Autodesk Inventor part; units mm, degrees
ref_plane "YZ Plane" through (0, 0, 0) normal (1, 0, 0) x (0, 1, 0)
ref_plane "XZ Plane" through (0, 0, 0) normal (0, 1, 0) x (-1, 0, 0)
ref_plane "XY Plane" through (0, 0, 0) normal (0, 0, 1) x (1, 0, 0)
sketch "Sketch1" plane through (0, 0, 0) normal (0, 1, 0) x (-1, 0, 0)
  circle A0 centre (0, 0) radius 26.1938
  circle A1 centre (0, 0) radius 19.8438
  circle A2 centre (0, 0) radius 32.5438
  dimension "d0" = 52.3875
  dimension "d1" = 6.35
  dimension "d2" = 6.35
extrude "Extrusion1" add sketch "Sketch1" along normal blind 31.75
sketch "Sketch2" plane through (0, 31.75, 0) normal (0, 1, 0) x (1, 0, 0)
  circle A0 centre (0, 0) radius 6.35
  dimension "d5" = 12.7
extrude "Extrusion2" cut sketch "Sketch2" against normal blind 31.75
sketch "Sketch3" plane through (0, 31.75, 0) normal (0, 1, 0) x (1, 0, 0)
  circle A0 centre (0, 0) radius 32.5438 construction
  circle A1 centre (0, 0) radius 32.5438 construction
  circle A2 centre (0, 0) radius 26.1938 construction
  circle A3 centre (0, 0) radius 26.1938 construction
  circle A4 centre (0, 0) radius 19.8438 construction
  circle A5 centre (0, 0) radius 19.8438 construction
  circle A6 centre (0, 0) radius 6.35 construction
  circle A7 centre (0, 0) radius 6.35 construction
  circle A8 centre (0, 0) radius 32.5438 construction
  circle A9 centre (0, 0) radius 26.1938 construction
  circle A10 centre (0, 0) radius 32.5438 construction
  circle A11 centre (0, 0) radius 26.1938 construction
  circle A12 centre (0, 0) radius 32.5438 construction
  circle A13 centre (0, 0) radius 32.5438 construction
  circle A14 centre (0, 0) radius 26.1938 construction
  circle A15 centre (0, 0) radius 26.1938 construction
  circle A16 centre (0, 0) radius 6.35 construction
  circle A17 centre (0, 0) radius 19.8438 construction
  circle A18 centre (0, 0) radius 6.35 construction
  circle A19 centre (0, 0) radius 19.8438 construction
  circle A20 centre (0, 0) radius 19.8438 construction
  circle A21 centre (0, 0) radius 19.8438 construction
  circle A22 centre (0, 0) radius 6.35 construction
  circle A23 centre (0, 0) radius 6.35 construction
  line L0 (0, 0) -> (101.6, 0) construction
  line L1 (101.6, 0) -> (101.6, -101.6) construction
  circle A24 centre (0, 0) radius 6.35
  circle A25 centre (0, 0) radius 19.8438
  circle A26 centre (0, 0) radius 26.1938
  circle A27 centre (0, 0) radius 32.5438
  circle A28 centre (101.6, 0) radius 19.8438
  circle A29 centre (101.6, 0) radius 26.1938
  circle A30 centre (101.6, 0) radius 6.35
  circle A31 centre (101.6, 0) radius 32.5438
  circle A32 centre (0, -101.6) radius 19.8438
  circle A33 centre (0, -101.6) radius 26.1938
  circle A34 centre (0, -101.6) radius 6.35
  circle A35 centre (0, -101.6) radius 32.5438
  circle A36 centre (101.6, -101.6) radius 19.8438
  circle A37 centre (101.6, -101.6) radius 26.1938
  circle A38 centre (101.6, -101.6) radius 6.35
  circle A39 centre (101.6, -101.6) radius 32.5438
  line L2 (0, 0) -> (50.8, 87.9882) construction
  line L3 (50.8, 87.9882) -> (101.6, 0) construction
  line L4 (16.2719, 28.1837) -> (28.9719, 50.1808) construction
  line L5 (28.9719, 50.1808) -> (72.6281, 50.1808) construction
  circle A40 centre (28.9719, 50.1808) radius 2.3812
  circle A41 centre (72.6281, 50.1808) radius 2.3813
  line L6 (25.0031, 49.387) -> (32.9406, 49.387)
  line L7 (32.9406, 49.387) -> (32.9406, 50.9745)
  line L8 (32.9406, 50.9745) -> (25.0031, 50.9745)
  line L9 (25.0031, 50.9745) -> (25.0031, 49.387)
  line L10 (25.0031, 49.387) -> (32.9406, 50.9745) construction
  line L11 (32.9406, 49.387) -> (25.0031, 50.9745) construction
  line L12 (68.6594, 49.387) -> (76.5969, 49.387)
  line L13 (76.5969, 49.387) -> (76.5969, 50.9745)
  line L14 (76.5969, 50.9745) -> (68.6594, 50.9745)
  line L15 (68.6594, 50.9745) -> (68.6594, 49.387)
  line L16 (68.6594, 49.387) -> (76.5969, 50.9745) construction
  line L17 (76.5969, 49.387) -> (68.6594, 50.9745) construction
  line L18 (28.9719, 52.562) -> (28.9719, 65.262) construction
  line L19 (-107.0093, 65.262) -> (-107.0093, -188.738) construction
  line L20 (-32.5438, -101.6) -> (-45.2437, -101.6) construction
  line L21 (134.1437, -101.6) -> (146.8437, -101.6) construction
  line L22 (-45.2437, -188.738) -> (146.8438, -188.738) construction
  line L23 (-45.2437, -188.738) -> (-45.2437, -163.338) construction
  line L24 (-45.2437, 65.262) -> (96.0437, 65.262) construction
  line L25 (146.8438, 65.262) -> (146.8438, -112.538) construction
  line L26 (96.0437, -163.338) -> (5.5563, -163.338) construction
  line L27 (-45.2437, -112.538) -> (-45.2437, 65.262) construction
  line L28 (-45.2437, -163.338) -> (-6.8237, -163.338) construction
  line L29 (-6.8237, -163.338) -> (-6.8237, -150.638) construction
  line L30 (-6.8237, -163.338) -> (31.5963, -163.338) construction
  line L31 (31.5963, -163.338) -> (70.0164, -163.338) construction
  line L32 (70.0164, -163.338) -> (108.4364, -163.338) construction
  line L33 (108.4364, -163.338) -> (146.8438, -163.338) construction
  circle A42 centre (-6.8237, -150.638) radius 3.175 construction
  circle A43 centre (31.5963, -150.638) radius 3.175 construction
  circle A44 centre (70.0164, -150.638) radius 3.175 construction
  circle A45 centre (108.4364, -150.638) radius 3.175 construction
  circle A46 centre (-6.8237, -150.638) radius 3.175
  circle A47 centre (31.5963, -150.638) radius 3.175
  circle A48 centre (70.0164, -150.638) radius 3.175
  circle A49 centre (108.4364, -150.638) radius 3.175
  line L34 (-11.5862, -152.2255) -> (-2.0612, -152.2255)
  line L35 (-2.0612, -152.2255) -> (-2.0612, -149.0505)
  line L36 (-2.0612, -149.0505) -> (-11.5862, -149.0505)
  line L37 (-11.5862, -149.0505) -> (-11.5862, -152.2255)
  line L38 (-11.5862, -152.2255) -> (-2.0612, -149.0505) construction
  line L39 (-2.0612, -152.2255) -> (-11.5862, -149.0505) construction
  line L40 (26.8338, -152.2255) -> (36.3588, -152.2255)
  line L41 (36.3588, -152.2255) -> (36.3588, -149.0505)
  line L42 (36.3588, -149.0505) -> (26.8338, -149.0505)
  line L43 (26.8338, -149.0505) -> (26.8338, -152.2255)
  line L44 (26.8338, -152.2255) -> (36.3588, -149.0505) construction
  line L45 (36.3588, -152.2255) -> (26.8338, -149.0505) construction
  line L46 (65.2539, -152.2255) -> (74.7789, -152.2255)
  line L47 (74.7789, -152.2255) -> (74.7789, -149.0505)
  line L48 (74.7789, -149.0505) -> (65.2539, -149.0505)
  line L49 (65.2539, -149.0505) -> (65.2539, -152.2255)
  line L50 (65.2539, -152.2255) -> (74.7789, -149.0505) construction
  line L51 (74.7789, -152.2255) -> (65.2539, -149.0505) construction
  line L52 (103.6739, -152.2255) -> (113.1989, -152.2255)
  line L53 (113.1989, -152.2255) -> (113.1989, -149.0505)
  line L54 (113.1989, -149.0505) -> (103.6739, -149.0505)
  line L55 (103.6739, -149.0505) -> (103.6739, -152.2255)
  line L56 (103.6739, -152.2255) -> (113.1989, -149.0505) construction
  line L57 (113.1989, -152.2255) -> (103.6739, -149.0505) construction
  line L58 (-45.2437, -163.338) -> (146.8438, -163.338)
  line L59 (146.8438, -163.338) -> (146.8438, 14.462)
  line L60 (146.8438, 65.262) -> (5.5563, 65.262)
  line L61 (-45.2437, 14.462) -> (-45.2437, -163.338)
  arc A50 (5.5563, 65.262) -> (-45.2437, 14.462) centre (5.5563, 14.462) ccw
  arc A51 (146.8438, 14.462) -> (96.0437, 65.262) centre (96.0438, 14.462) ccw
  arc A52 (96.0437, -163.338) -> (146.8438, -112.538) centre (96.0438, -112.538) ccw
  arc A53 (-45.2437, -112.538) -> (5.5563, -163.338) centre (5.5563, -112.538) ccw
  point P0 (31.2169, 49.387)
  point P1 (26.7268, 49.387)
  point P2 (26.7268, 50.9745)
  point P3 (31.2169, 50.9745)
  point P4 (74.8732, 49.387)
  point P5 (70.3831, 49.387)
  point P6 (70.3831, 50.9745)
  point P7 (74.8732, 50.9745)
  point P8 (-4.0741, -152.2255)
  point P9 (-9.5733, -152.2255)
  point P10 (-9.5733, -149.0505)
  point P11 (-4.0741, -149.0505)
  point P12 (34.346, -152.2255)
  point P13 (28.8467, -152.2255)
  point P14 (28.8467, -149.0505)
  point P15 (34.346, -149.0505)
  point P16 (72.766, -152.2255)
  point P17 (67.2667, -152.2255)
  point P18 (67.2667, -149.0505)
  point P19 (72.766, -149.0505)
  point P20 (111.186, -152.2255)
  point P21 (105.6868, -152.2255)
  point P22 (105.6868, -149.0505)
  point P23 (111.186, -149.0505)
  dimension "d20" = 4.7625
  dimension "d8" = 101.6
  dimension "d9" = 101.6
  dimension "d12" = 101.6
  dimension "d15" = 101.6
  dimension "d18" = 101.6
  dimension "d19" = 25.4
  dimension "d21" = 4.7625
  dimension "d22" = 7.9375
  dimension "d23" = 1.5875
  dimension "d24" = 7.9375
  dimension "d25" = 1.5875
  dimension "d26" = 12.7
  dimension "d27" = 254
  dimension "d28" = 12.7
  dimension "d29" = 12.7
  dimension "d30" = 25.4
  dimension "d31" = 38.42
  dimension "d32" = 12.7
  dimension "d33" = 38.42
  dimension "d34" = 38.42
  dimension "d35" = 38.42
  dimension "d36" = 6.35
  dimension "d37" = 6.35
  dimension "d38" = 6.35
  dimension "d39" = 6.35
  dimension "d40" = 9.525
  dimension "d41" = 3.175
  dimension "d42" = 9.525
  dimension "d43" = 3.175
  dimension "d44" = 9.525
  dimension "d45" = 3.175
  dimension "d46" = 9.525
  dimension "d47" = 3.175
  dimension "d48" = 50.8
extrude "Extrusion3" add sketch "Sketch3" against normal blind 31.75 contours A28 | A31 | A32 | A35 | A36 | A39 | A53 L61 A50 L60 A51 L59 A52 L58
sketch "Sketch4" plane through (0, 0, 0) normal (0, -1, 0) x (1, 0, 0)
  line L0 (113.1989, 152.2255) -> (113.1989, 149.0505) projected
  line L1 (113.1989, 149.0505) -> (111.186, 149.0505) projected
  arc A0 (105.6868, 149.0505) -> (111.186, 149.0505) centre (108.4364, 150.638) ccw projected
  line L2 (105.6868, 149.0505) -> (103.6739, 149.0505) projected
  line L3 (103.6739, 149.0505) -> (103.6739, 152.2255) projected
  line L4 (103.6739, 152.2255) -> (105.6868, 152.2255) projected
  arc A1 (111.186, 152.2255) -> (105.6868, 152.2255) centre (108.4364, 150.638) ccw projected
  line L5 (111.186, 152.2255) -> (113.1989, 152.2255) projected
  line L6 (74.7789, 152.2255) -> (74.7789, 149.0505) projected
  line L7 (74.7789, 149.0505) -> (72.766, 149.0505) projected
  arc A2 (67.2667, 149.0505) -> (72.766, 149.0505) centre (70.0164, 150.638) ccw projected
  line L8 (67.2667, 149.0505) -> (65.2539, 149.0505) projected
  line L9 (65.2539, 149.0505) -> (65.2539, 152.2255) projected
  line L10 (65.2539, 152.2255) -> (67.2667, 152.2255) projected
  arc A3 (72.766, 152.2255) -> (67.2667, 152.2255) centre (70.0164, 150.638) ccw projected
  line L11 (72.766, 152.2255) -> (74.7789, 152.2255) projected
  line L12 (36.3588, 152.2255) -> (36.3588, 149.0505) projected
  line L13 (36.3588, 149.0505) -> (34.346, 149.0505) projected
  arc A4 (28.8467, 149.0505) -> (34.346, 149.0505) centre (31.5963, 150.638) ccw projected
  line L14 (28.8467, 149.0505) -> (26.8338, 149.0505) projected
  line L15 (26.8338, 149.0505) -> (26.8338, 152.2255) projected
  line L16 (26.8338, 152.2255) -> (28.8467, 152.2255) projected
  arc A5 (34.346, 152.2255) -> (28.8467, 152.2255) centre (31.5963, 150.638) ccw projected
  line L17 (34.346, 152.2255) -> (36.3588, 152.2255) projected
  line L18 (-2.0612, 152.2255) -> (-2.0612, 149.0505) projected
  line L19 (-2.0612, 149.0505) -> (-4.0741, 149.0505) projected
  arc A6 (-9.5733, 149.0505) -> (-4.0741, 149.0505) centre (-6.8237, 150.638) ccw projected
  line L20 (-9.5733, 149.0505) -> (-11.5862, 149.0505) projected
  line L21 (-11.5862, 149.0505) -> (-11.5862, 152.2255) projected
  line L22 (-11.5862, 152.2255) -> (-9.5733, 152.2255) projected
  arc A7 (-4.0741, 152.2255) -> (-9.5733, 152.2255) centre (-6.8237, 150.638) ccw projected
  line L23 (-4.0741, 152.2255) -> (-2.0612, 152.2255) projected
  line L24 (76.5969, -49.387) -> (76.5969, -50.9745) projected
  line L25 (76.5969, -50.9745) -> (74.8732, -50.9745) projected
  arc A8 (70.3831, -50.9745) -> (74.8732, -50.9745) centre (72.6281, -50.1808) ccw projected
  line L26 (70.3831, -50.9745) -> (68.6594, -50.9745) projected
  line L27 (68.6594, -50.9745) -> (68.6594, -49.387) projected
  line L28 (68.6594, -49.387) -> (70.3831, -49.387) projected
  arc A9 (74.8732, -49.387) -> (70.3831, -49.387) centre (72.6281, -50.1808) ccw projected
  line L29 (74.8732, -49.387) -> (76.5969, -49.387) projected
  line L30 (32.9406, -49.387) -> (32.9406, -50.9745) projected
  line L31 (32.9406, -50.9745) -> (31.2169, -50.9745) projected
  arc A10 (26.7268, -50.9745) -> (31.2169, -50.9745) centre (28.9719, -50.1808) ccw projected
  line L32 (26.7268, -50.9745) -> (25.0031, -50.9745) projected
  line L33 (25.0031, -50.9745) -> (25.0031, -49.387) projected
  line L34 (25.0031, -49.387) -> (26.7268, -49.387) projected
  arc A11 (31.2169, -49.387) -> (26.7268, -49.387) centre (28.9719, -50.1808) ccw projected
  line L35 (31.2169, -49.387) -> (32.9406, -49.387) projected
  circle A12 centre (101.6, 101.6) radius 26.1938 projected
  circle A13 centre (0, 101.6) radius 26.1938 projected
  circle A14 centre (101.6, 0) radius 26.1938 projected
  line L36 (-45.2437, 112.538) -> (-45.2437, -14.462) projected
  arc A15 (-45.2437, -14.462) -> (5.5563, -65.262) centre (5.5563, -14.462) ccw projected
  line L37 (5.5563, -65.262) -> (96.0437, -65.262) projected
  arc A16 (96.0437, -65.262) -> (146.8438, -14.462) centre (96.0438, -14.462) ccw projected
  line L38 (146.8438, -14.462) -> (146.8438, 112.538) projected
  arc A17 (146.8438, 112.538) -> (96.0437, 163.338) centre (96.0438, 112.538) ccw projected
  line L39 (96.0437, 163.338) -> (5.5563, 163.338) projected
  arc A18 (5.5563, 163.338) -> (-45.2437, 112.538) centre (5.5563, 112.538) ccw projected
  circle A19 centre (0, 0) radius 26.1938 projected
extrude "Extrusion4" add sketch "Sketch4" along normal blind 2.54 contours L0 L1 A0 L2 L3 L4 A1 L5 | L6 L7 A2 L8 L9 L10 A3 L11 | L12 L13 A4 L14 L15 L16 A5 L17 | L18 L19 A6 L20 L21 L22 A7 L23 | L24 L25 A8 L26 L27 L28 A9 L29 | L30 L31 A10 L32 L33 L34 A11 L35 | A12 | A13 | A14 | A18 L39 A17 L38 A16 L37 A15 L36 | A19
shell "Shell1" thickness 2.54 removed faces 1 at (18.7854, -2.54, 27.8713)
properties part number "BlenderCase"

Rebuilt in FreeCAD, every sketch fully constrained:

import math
import FreeCAD as App
import Part
import Sketcher
from FreeCAD import Vector
Q = App.Units.Quantity


def faces_at(feature, points):
    """Names of the faces that lie closest to the given points."""
    faces = feature.Shape.Faces
    near = lambda p: min(range(len(faces)), key=lambda i: faces[i].distToShape(Part.Vertex(*p))[0])
    return sorted({f"Face{near(p) + 1}" for p in points})

doc = App.newDocument("Part")
body = doc.addObject("PartDesign::Body", "Body")
body.AllowCompound = True

sketch1 = body.newObject("Sketcher::SketchObject", "Sketch")
sketch1.AttachmentSupport = (doc.getObject("XZ_Plane"), [""])
sketch1.MapMode = "FlatFace"
sketch1.addGeometry(Part.Circle(Vector(0, 0, 0), Vector(0, 0, 1), 20), False)
sketch1.addGeometry(Part.Circle(Vector(0, 0, 0), Vector(0, 0, 1), 33), False)
sketch1.addGeometry(Part.Circle(Vector(0, 0, 0), Vector(0, 0, 1), 26), False)
sketch1.addConstraint(Sketcher.Constraint("Coincident", 0, 3, -1, 1))
sketch1.addConstraint(Sketcher.Constraint("Coincident", 1, 3, -1, 1))
sketch1.addConstraint(Sketcher.Constraint("Coincident", 2, 3, -1, 1))
sketch1.addConstraint(Sketcher.Constraint("Diameter", 2, Q("2.0625 in")))
sketch1.addConstraint(Sketcher.Constraint("Diameter", 0, Q("1.5625 in")))
sketch1.addConstraint(Sketcher.Constraint("Diameter", 1, Q("2.5625 in")))
pad1 = body.newObject("PartDesign::Pad", "Pad")
pad1.Profile = sketch1
pad1.Length = Q("1.25 in")
pad1.Reversed = True

sketch2 = body.newObject("Sketcher::SketchObject", "Sketch001")
sketch2.AttachmentSupport = (doc.getObject("XZ_Plane"), [""])
sketch2.MapMode = "FlatFace"
sketch2.AttachmentOffset = App.Placement(Vector(0, 0, -1.25 * 25.4), App.Rotation())
sketch2.addGeometry(Part.Circle(Vector(0, 0, 0), Vector(0, 0, 1), 6), False)
sketch2.addConstraint(Sketcher.Constraint("Coincident", 0, 3, -1, 1))
sketch2.addConstraint(Sketcher.Constraint("Diameter", 0, Q("0.5 in")))
pocket1 = body.newObject("PartDesign::Pocket", "Pocket")
pocket1.Profile = sketch2
pocket1.Length = Q("1.25 in")
pocket1.Reversed = True

sketch3 = body.newObject("Sketcher::SketchObject", "Sketch002")
sketch3.AttachmentSupport = (doc.getObject("XZ_Plane"), [""])
sketch3.MapMode = "FlatFace"
sketch3.AttachmentOffset = App.Placement(Vector(0, 0, -1.25 * 25.4), App.Rotation())
sketch3.addGeometry(Part.Circle(Vector(101.6, 0, 0), Vector(0, 0, 1), 19.8), False)
sketch3.addGeometry(Part.Circle(Vector(101.6, 0, 0), Vector(0, 0, 1), 6.3), False)
sketch3.addGeometry(Part.ArcOfCircle(Part.Circle(Vector(5.6, 112.5, 0), Vector(0, 0, 1), 50.8), math.radians(90), math.radians(180)), False)
sketch3.addGeometry(Part.LineSegment(Vector(5.6, 163.3, 0), Vector(96, 163.3, 0)), False)
sketch3.addGeometry(Part.ArcOfCircle(Part.Circle(Vector(96, 112.5, 0), Vector(0, 0, 1), 50.8), math.radians(0), math.radians(90)), False)
sketch3.addGeometry(Part.LineSegment(Vector(146.8, 112.5, 0), Vector(146.8, -14.5, 0)), False)
sketch3.addGeometry(Part.ArcOfCircle(Part.Circle(Vector(96, -14.5, 0), Vector(0, 0, 1), 50.8), math.radians(-90), math.radians(0)), False)
sketch3.addGeometry(Part.LineSegment(Vector(96, -65.3, 0), Vector(5.6, -65.3, 0)), False)
sketch3.addGeometry(Part.ArcOfCircle(Part.Circle(Vector(5.6, -14.5, 0), Vector(0, 0, 1), 50.8), math.radians(180), math.radians(270)), False)
sketch3.addGeometry(Part.LineSegment(Vector(-45.2, -14.5, 0), Vector(-45.2, 112.5, 0)), False)
sketch3.addGeometry(Part.Circle(Vector(101.6, 0, 0), Vector(0, 0, 1), 26.2), False)
sketch3.addGeometry(Part.ArcOfCircle(Part.Circle(Vector(-6.8, 150.6, 0), Vector(0, 0, 1), 3.2), math.radians(-150), math.radians(-30)), False)
sketch3.addGeometry(Part.LineSegment(Vector(-4.1, 149.1, 0), Vector(-2.1, 149.1, 0)), False)
sketch3.addGeometry(Part.LineSegment(Vector(-2.1, 149.1, 0), Vector(-2.1, 152.2, 0)), False)
sketch3.addGeometry(Part.LineSegment(Vector(-2.1, 152.2, 0), Vector(-4.1, 152.2, 0)), False)
sketch3.addGeometry(Part.ArcOfCircle(Part.Circle(Vector(-6.8, 150.6, 0), Vector(0, 0, 1), 3.2), math.radians(30), math.radians(150)), False)
sketch3.addGeometry(Part.LineSegment(Vector(-9.6, 152.2, 0), Vector(-11.6, 152.2, 0)), False)
sketch3.addGeometry(Part.LineSegment(Vector(-11.6, 152.2, 0), Vector(-11.6, 149.1, 0)), False)
sketch3.addGeometry(Part.LineSegment(Vector(-11.6, 149.1, 0), Vector(-9.6, 149.1, 0)), False)
sketch3.addGeometry(Part.ArcOfCircle(Part.Circle(Vector(31.6, 150.6, 0), Vector(0, 0, 1), 3.2), math.radians(-150), math.radians(-30)), False)
sketch3.addGeometry(Part.LineSegment(Vector(34.3, 149.1, 0), Vector(36.4, 149.1, 0)), False)
sketch3.addGeometry(Part.LineSegment(Vector(36.4, 149.1, 0), Vector(36.4, 152.2, 0)), False)
sketch3.addGeometry(Part.LineSegment(Vector(36.4, 152.2, 0), Vector(34.3, 152.2, 0)), False)
sketch3.addGeometry(Part.ArcOfCircle(Part.Circle(Vector(31.6, 150.6, 0), Vector(0, 0, 1), 3.2), math.radians(30), math.radians(150)), False)
sketch3.addGeometry(Part.LineSegment(Vector(28.8, 152.2, 0), Vector(26.8, 152.2, 0)), False)
sketch3.addGeometry(Part.LineSegment(Vector(26.8, 152.2, 0), Vector(26.8, 149.1, 0)), False)
sketch3.addGeometry(Part.LineSegment(Vector(26.8, 149.1, 0), Vector(28.8, 149.1, 0)), False)
sketch3.addGeometry(Part.ArcOfCircle(Part.Circle(Vector(70, 150.6, 0), Vector(0, 0, 1), 3.2), math.radians(-150), math.radians(-30)), False)
sketch3.addGeometry(Part.LineSegment(Vector(72.8, 149.1, 0), Vector(74.8, 149.1, 0)), False)
sketch3.addGeometry(Part.LineSegment(Vector(74.8, 149.1, 0), Vector(74.8, 152.2, 0)), False)
sketch3.addGeometry(Part.LineSegment(Vector(74.8, 152.2, 0), Vector(72.8, 152.2, 0)), False)
sketch3.addGeometry(Part.ArcOfCircle(Part.Circle(Vector(70, 150.6, 0), Vector(0, 0, 1), 3.2), math.radians(30), math.radians(150)), False)
sketch3.addGeometry(Part.LineSegment(Vector(67.3, 152.2, 0), Vector(65.3, 152.2, 0)), False)
sketch3.addGeometry(Part.LineSegment(Vector(65.3, 152.2, 0), Vector(65.3, 149.1, 0)), False)
sketch3.addGeometry(Part.LineSegment(Vector(65.3, 149.1, 0), Vector(67.3, 149.1, 0)), False)
sketch3.addGeometry(Part.ArcOfCircle(Part.Circle(Vector(108.4, 150.6, 0), Vector(0, 0, 1), 3.2), math.radians(-150), math.radians(-30)), False)
sketch3.addGeometry(Part.LineSegment(Vector(111.2, 149.1, 0), Vector(113.2, 149.1, 0)), False)
sketch3.addGeometry(Part.LineSegment(Vector(113.2, 149.1, 0), Vector(113.2, 152.2, 0)), False)
sketch3.addGeometry(Part.LineSegment(Vector(113.2, 152.2, 0), Vector(111.2, 152.2, 0)), False)
sketch3.addGeometry(Part.ArcOfCircle(Part.Circle(Vector(108.4, 150.6, 0), Vector(0, 0, 1), 3.2), math.radians(30), math.radians(150)), False)
sketch3.addGeometry(Part.LineSegment(Vector(105.7, 152.2, 0), Vector(103.7, 152.2, 0)), False)
sketch3.addGeometry(Part.LineSegment(Vector(103.7, 152.2, 0), Vector(103.7, 149.1, 0)), False)
sketch3.addGeometry(Part.LineSegment(Vector(103.7, 149.1, 0), Vector(105.7, 149.1, 0)), False)
sketch3.addGeometry(Part.Circle(Vector(0, 0, 0), Vector(0, 0, 1), 32.5), False)
sketch3.addGeometry(Part.ArcOfCircle(Part.Circle(Vector(29, -50.2, 0), Vector(0, 0, 1), 2.4), math.radians(-161), math.radians(-19)), False)
sketch3.addGeometry(Part.LineSegment(Vector(31.2, -51, 0), Vector(32.9, -51, 0)), False)
sketch3.addGeometry(Part.LineSegment(Vector(32.9, -51, 0), Vector(32.9, -49.4, 0)), False)
sketch3.addGeometry(Part.LineSegment(Vector(32.9, -49.4, 0), Vector(31.2, -49.4, 0)), False)
sketch3.addGeometry(Part.ArcOfCircle(Part.Circle(Vector(29, -50.2, 0), Vector(0, 0, 1), 2.4), math.radians(19), math.radians(161)), False)
sketch3.addGeometry(Part.LineSegment(Vector(26.7, -49.4, 0), Vector(25, -49.4, 0)), False)
sketch3.addGeometry(Part.LineSegment(Vector(25, -49.4, 0), Vector(25, -51, 0)), False)
sketch3.addGeometry(Part.LineSegment(Vector(25, -51, 0), Vector(26.7, -51, 0)), False)
sketch3.addGeometry(Part.LineSegment(Vector(74.9, -51, 0), Vector(76.6, -51, 0)), False)
sketch3.addGeometry(Part.LineSegment(Vector(76.6, -51, 0), Vector(76.6, -49.4, 0)), False)
sketch3.addGeometry(Part.LineSegment(Vector(76.6, -49.4, 0), Vector(74.9, -49.4, 0)), False)
sketch3.addGeometry(Part.ArcOfCircle(Part.Circle(Vector(72.6, -50.2, 0), Vector(0, 0, 1), 2.4), math.radians(19), math.radians(161)), False)
sketch3.addGeometry(Part.LineSegment(Vector(70.4, -49.4, 0), Vector(68.7, -49.4, 0)), False)
sketch3.addGeometry(Part.LineSegment(Vector(68.7, -49.4, 0), Vector(68.7, -51, 0)), False)
sketch3.addGeometry(Part.LineSegment(Vector(68.7, -51, 0), Vector(70.4, -51, 0)), False)
sketch3.addGeometry(Part.ArcOfCircle(Part.Circle(Vector(72.6, -50.2, 0), Vector(0, 0, 1), 2.4), math.radians(-161), math.radians(-19)), False)
sketch3.addGeometry(Part.Circle(Vector(0, 101.6, 0), Vector(0, 0, 1), 26.2), False)
sketch3.addGeometry(Part.Circle(Vector(101.6, 101.6, 0), Vector(0, 0, 1), 26.2), False)
sketch3.addGeometry(Part.Circle(Vector(0, 101.6, 0), Vector(0, 0, 1), 19.8), False)
sketch3.addGeometry(Part.Circle(Vector(0, 101.6, 0), Vector(0, 0, 1), 6.3), False)
sketch3.addGeometry(Part.Circle(Vector(101.6, 101.6, 0), Vector(0, 0, 1), 19.8), False)
sketch3.addGeometry(Part.Circle(Vector(101.6, 101.6, 0), Vector(0, 0, 1), 6.3), False)
sketch3.addConstraint(Sketcher.Constraint("Tangent", 2, 1, 3, 1))
sketch3.addConstraint(Sketcher.Constraint("Tangent", 3, 2, 4, 2))
sketch3.addConstraint(Sketcher.Constraint("Tangent", 4, 1, 5, 1))
sketch3.addConstraint(Sketcher.Constraint("Tangent", 5, 2, 6, 2))
sketch3.addConstraint(Sketcher.Constraint("Tangent", 6, 1, 7, 1))
sketch3.addConstraint(Sketcher.Constraint("Tangent", 7, 2, 8, 2))
sketch3.addConstraint(Sketcher.Constraint("Tangent", 8, 1, 9, 1))
sketch3.addConstraint(Sketcher.Constraint("Tangent", 9, 2, 2, 2))
sketch3.addConstraint(Sketcher.Constraint("Coincident", 11, 2, 12, 1))
sketch3.addConstraint(Sketcher.Constraint("Coincident", 12, 2, 13, 1))
sketch3.addConstraint(Sketcher.Constraint("Coincident", 13, 2, 14, 1))
sketch3.addConstraint(Sketcher.Constraint("Coincident", 14, 2, 15, 1))
sketch3.addConstraint(Sketcher.Constraint("Coincident", 15, 2, 16, 1))
sketch3.addConstraint(Sketcher.Constraint("Coincident", 16, 2, 17, 1))
sketch3.addConstraint(Sketcher.Constraint("Coincident", 17, 2, 18, 1))
sketch3.addConstraint(Sketcher.Constraint("Coincident", 18, 2, 11, 1))
sketch3.addConstraint(Sketcher.Constraint("Coincident", 19, 2, 20, 1))
sketch3.addConstraint(Sketcher.Constraint("Coincident", 20, 2, 21, 1))
sketch3.addConstraint(Sketcher.Constraint("Coincident", 21, 2, 22, 1))
sketch3.addConstraint(Sketcher.Constraint("Coincident", 22, 2, 23, 1))
sketch3.addConstraint(Sketcher.Constraint("Coincident", 23, 2, 24, 1))
sketch3.addConstraint(Sketcher.Constraint("Coincident", 24, 2, 25, 1))
sketch3.addConstraint(Sketcher.Constraint("Coincident", 25, 2, 26, 1))
sketch3.addConstraint(Sketcher.Constraint("Coincident", 26, 2, 19, 1))
sketch3.addConstraint(Sketcher.Constraint("Coincident", 27, 2, 28, 1))
sketch3.addConstraint(Sketcher.Constraint("Coincident", 28, 2, 29, 1))
sketch3.addConstraint(Sketcher.Constraint("Coincident", 29, 2, 30, 1))
sketch3.addConstraint(Sketcher.Constraint("Coincident", 30, 2, 31, 1))
sketch3.addConstraint(Sketcher.Constraint("Coincident", 31, 2, 32, 1))
sketch3.addConstraint(Sketcher.Constraint("Coincident", 32, 2, 33, 1))
sketch3.addConstraint(Sketcher.Constraint("Coincident", 33, 2, 34, 1))
sketch3.addConstraint(Sketcher.Constraint("Coincident", 34, 2, 27, 1))
sketch3.addConstraint(Sketcher.Constraint("Coincident", 35, 2, 36, 1))
sketch3.addConstraint(Sketcher.Constraint("Coincident", 36, 2, 37, 1))
sketch3.addConstraint(Sketcher.Constraint("Coincident", 37, 2, 38, 1))
sketch3.addConstraint(Sketcher.Constraint("Coincident", 38, 2, 39, 1))
sketch3.addConstraint(Sketcher.Constraint("Coincident", 39, 2, 40, 1))
sketch3.addConstraint(Sketcher.Constraint("Coincident", 40, 2, 41, 1))
sketch3.addConstraint(Sketcher.Constraint("Coincident", 41, 2, 42, 1))
sketch3.addConstraint(Sketcher.Constraint("Coincident", 42, 2, 35, 1))
sketch3.addConstraint(Sketcher.Constraint("Coincident", 44, 2, 45, 1))
sketch3.addConstraint(Sketcher.Constraint("Coincident", 45, 2, 46, 1))
sketch3.addConstraint(Sketcher.Constraint("Coincident", 46, 2, 47, 1))
sketch3.addConstraint(Sketcher.Constraint("Coincident", 47, 2, 48, 1))
sketch3.addConstraint(Sketcher.Constraint("Coincident", 48, 2, 49, 1))
sketch3.addConstraint(Sketcher.Constraint("Coincident", 49, 2, 50, 1))
sketch3.addConstraint(Sketcher.Constraint("Coincident", 50, 2, 51, 1))
sketch3.addConstraint(Sketcher.Constraint("Coincident", 51, 2, 44, 1))
sketch3.addConstraint(Sketcher.Constraint("Coincident", 52, 2, 53, 1))
sketch3.addConstraint(Sketcher.Constraint("Coincident", 53, 2, 54, 1))
sketch3.addConstraint(Sketcher.Constraint("Coincident", 54, 2, 55, 1))
sketch3.addConstraint(Sketcher.Constraint("Coincident", 55, 2, 56, 1))
sketch3.addConstraint(Sketcher.Constraint("Coincident", 56, 2, 57, 1))
sketch3.addConstraint(Sketcher.Constraint("Coincident", 57, 2, 58, 1))
sketch3.addConstraint(Sketcher.Constraint("Coincident", 58, 2, 59, 1))
sketch3.addConstraint(Sketcher.Constraint("Coincident", 59, 2, 52, 1))
sketch3.addConstraint(Sketcher.Constraint("Horizontal", 3))
sketch3.addConstraint(Sketcher.Constraint("Vertical", 5))
sketch3.addConstraint(Sketcher.Constraint("Horizontal", 7))
sketch3.addConstraint(Sketcher.Constraint("Vertical", 9))
sketch3.addConstraint(Sketcher.Constraint("Horizontal", 12))
sketch3.addConstraint(Sketcher.Constraint("Vertical", 13))
sketch3.addConstraint(Sketcher.Constraint("Horizontal", 14))
sketch3.addConstraint(Sketcher.Constraint("Horizontal", 16))
sketch3.addConstraint(Sketcher.Constraint("Vertical", 17))
sketch3.addConstraint(Sketcher.Constraint("Horizontal", 18))
sketch3.addConstraint(Sketcher.Constraint("Horizontal", 20))
sketch3.addConstraint(Sketcher.Constraint("Vertical", 21))
sketch3.addConstraint(Sketcher.Constraint("Horizontal", 22))
sketch3.addConstraint(Sketcher.Constraint("Horizontal", 24))
sketch3.addConstraint(Sketcher.Constraint("Vertical", 25))
sketch3.addConstraint(Sketcher.Constraint("Horizontal", 26))
sketch3.addConstraint(Sketcher.Constraint("Horizontal", 28))
sketch3.addConstraint(Sketcher.Constraint("Vertical", 29))
sketch3.addConstraint(Sketcher.Constraint("Horizontal", 30))
sketch3.addConstraint(Sketcher.Constraint("Horizontal", 32))
sketch3.addConstraint(Sketcher.Constraint("Vertical", 33))
sketch3.addConstraint(Sketcher.Constraint("Horizontal", 34))
sketch3.addConstraint(Sketcher.Constraint("Horizontal", 36))
sketch3.addConstraint(Sketcher.Constraint("Vertical", 37))
sketch3.addConstraint(Sketcher.Constraint("Horizontal", 38))
sketch3.addConstraint(Sketcher.Constraint("Horizontal", 40))
sketch3.addConstraint(Sketcher.Constraint("Vertical", 41))
sketch3.addConstraint(Sketcher.Constraint("Horizontal", 42))
sketch3.addConstraint(Sketcher.Constraint("Horizontal", 45))
sketch3.addConstraint(Sketcher.Constraint("Vertical", 46))
sketch3.addConstraint(Sketcher.Constraint("Horizontal", 47))
sketch3.addConstraint(Sketcher.Constraint("Horizontal", 49))
sketch3.addConstraint(Sketcher.Constraint("Vertical", 50))
sketch3.addConstraint(Sketcher.Constraint("Horizontal", 51))
sketch3.addConstraint(Sketcher.Constraint("Horizontal", 52))
sketch3.addConstraint(Sketcher.Constraint("Vertical", 53))
sketch3.addConstraint(Sketcher.Constraint("Horizontal", 54))
sketch3.addConstraint(Sketcher.Constraint("Horizontal", 56))
sketch3.addConstraint(Sketcher.Constraint("Vertical", 57))
sketch3.addConstraint(Sketcher.Constraint("Horizontal", 58))
sketch3.addConstraint(Sketcher.Constraint("Coincident", 43, 3, -1, 1))
sketch3.addConstraint(Sketcher.Constraint("Coincident", 1, 3, 0, 3))
sketch3.addConstraint(Sketcher.Constraint("Coincident", 10, 3, 0, 3))
sketch3.addConstraint(Sketcher.Constraint("Coincident", 15, 3, 11, 3))
sketch3.addConstraint(Sketcher.Constraint("Coincident", 23, 3, 19, 3))
sketch3.addConstraint(Sketcher.Constraint("Coincident", 31, 3, 27, 3))
sketch3.addConstraint(Sketcher.Constraint("Coincident", 39, 3, 35, 3))
sketch3.addConstraint(Sketcher.Constraint("Coincident", 48, 3, 44, 3))
sketch3.addConstraint(Sketcher.Constraint("Coincident", 59, 3, 55, 3))
sketch3.addConstraint(Sketcher.Constraint("Coincident", 62, 3, 60, 3))
sketch3.addConstraint(Sketcher.Constraint("Coincident", 63, 3, 60, 3))
sketch3.addConstraint(Sketcher.Constraint("Coincident", 64, 3, 61, 3))
sketch3.addConstraint(Sketcher.Constraint("Coincident", 65, 3, 61, 3))
sketch3.addConstraint(Sketcher.Constraint("Equal", 2, 4))
sketch3.addConstraint(Sketcher.Constraint("Equal", 4, 6))
sketch3.addConstraint(Sketcher.Constraint("Equal", 6, 8))
sketch3.addConstraint(Sketcher.Constraint("Equal", 11, 15))
sketch3.addConstraint(Sketcher.Constraint("Equal", 15, 19))
sketch3.addConstraint(Sketcher.Constraint("Equal", 19, 23))
sketch3.addConstraint(Sketcher.Constraint("Equal", 23, 27))
sketch3.addConstraint(Sketcher.Constraint("Equal", 27, 31))
sketch3.addConstraint(Sketcher.Constraint("Equal", 31, 35))
sketch3.addConstraint(Sketcher.Constraint("Equal", 35, 39))
sketch3.addConstraint(Sketcher.Constraint("Equal", 44, 48))
sketch3.addConstraint(Sketcher.Constraint("Equal", 48, 55))
sketch3.addConstraint(Sketcher.Constraint("Equal", 55, 59))
sketch3.addConstraint(Sketcher.Constraint("Equal", 10, 60))
sketch3.addConstraint(Sketcher.Constraint("Equal", 60, 61))
sketch3.addConstraint(Sketcher.Constraint("Equal", 0, 62))
sketch3.addConstraint(Sketcher.Constraint("Equal", 1, 63))
sketch3.addConstraint(Sketcher.Constraint("Equal", 62, 64))
sketch3.addConstraint(Sketcher.Constraint("Equal", 63, 65))
sketch3.addConstraint(Sketcher.Constraint("PointOnObject", 0, 3, -1))
sketch3.addConstraint(Sketcher.Constraint("PointOnObject", 60, 3, -2))
sketch3.addConstraint(Sketcher.Constraint("Horizontal", 15, 3, 19, 3))
sketch3.addConstraint(Sketcher.Constraint("Horizontal", 23, 3, 27, 3))
sketch3.addConstraint(Sketcher.Constraint("Horizontal", 31, 3, 35, 3))
sketch3.addConstraint(Sketcher.Constraint("Horizontal", 48, 3, 55, 3))
sketch3.addConstraint(Sketcher.Constraint("Horizontal", 60, 3, 61, 3))
sketch3.addConstraint(Sketcher.Constraint("Horizontal", 14, 2, 15, 2))
sketch3.addConstraint(Sketcher.Constraint("Horizontal", 12, 2, 17, 2))
sketch3.addConstraint(Sketcher.Constraint("Horizontal", 18, 2, 19, 2))
sketch3.addConstraint(Sketcher.Constraint("Horizontal", 16, 2, 21, 2))
sketch3.addConstraint(Sketcher.Constraint("Horizontal", 22, 2, 23, 2))
sketch3.addConstraint(Sketcher.Constraint("Horizontal", 20, 2, 25, 2))
sketch3.addConstraint(Sketcher.Constraint("Horizontal", 26, 2, 27, 2))
sketch3.addConstraint(Sketcher.Constraint("Horizontal", 24, 2, 29, 2))
sketch3.addConstraint(Sketcher.Constraint("Horizontal", 30, 2, 31, 2))
sketch3.addConstraint(Sketcher.Constraint("Horizontal", 28, 2, 33, 2))
sketch3.addConstraint(Sketcher.Constraint("Horizontal", 34, 2, 35, 2))
sketch3.addConstraint(Sketcher.Constraint("Horizontal", 32, 2, 37, 2))
sketch3.addConstraint(Sketcher.Constraint("Horizontal", 38, 2, 39, 2))
sketch3.addConstraint(Sketcher.Constraint("Horizontal", 36, 2, 41, 2))
sketch3.addConstraint(Sketcher.Constraint("Horizontal", 47, 2, 48, 2))
sketch3.addConstraint(Sketcher.Constraint("Horizontal", 45, 2, 50, 2))
sketch3.addConstraint(Sketcher.Constraint("Horizontal", 51, 2, 52, 2))
sketch3.addConstraint(Sketcher.Constraint("Horizontal", 49, 2, 53, 2))
sketch3.addConstraint(Sketcher.Constraint("Horizontal", 54, 2, 55, 2))
sketch3.addConstraint(Sketcher.Constraint("Horizontal", 52, 2, 57, 2))
sketch3.addConstraint(Sketcher.Constraint("Vertical", 10, 3, 61, 3))
sketch3.addConstraint(Sketcher.Constraint("Vertical", 11, 2, 14, 2))
sketch3.addConstraint(Sketcher.Constraint("Vertical", 44, 2, 47, 2))
sketch3.addConstraint(Sketcher.Constraint("Equal", 14, 16))
sketch3.addConstraint(Sketcher.Constraint("Equal", 18, 20))
sketch3.addConstraint(Sketcher.Constraint("Equal", 22, 24))
sketch3.addConstraint(Sketcher.Constraint("Equal", 26, 28))
sketch3.addConstraint(Sketcher.Constraint("Equal", 30, 32))
sketch3.addConstraint(Sketcher.Constraint("Equal", 34, 36))
sketch3.addConstraint(Sketcher.Constraint("Equal", 38, 40))
sketch3.addConstraint(Sketcher.Constraint("Equal", 47, 49))
sketch3.addConstraint(Sketcher.Constraint("Equal", 51, 52))
sketch3.addConstraint(Sketcher.Constraint("Equal", 54, 56))
sketch3.addConstraint(Sketcher.Constraint("Radius", 2, Q("2 in")))
sketch3.addConstraint(Sketcher.Constraint("Diameter", 1, Q("0.5 in")))
sketch3.addConstraint(Sketcher.Constraint("DistanceX", -1, 1, 0, 3, Q("4 in")))
sketch3.addConstraint(Sketcher.Constraint("DistanceY", -1, 1, 60, 3, Q("4 in")))
sketch3.addConstraint(Sketcher.Constraint("Radius", 11, Q("0.125 in")))
sketch3.addConstraint(Sketcher.Constraint("Radius", 44, Q("0.093748 in")))
sketch3.addConstraint(Sketcher.Constraint("DistanceY", 5, 2, 5, 1, Q("5 in")))
sketch3.addConstraint(Sketcher.Constraint("DistanceY", 13, 1, 13, 2, Q("0.125 in")))
sketch3.addConstraint(Sketcher.Constraint("DistanceY", 46, 1, 46, 2, Q("0.0625 in")))
sketch3.addConstraint(Sketcher.Constraint("Diameter", 0, Q("1.5625 in")))
sketch3.addConstraint(Sketcher.Constraint("Diameter", 10, Q("2.0625 in")))
sketch3.addConstraint(Sketcher.Constraint("Diameter", 43, Q("2.5625 in")))
sketch3.addConstraint(Sketcher.Constraint("DistanceX", 3, 1, 3, 2, Q("3.5625 in")))
sketch3.addConstraint(Sketcher.Constraint("DistanceX", -1, 1, 2, 3, Q("0.218752 in")))
sketch3.addConstraint(Sketcher.Constraint("DistanceX", -1, 1, 44, 3, Q("1.1406299 in")))
sketch3.addConstraint(Sketcher.Constraint("DistanceX", -1, 1, 55, 3, Q("2.8593701 in")))
sketch3.addConstraint(Sketcher.Constraint("DistanceX", -1, 1, 45, 2, Q("1.296874 in")))
sketch3.addConstraint(Sketcher.Constraint("DistanceX", 12, 1, 12, 2, 2.0129))
sketch3.addConstraint(Sketcher.Constraint("DistanceX", 11, 2, -1, 1, Q("0.1604 in")))
sketch3.addConstraint(Sketcher.Constraint("DistanceX", -1, 1, 19, 2, Q("1.3522 in")))
sketch3.addConstraint(Sketcher.Constraint("DistanceX", -1, 1, 27, 2, Q("2.8648 in")))
sketch3.addConstraint(Sketcher.Constraint("DistanceX", -1, 1, 35, 2, Q("4.3774 in")))
sketch3.addConstraint(Sketcher.Constraint("DistanceY", -1, 1, 2, 3, 112.538))
sketch3.addConstraint(Sketcher.Constraint("DistanceY", -1, 1, 11, 3, 150.638))
sketch3.addConstraint(Sketcher.Constraint("DistanceY", 44, 3, -1, 1, 50.1808))
pad2 = body.newObject("PartDesign::Pad", "Pad001")
pad2.Profile = sketch3
pad2.Length = Q("1.25 in")

sketch4 = body.newObject("Sketcher::SketchObject", "Sketch003")
sketch4.AttachmentSupport = (doc.getObject("XZ_Plane"), [""])
sketch4.MapMode = "FlatFace"
sketch4.addGeometry(Part.ArcOfCircle(Part.Circle(Vector(6, 113, 0), Vector(0, 0, 1), 51), math.radians(90), math.radians(180)), False)
sketch4.addGeometry(Part.LineSegment(Vector(-45, 113, 0), Vector(-45, -14, 0)), False)
sketch4.addGeometry(Part.ArcOfCircle(Part.Circle(Vector(6, -14, 0), Vector(0, 0, 1), 51), math.radians(180), math.radians(270)), False)
sketch4.addGeometry(Part.LineSegment(Vector(6, -65, 0), Vector(96, -65, 0)), False)
sketch4.addGeometry(Part.ArcOfCircle(Part.Circle(Vector(96, -14, 0), Vector(0, 0, 1), 51), math.radians(-90), math.radians(0)), False)
sketch4.addGeometry(Part.LineSegment(Vector(147, -14, 0), Vector(147, 113, 0)), False)
sketch4.addGeometry(Part.ArcOfCircle(Part.Circle(Vector(96, 113, 0), Vector(0, 0, 1), 51), math.radians(0), math.radians(90)), False)
sketch4.addGeometry(Part.LineSegment(Vector(96, 163, 0), Vector(6, 163, 0)), False)
sketch4.addConstraint(Sketcher.Constraint("Tangent", 0, 2, 1, 1))
sketch4.addConstraint(Sketcher.Constraint("Tangent", 1, 2, 2, 1))
sketch4.addConstraint(Sketcher.Constraint("Tangent", 2, 2, 3, 1))
sketch4.addConstraint(Sketcher.Constraint("Tangent", 3, 2, 4, 1))
sketch4.addConstraint(Sketcher.Constraint("Tangent", 4, 2, 5, 1))
sketch4.addConstraint(Sketcher.Constraint("Tangent", 5, 2, 6, 1))
sketch4.addConstraint(Sketcher.Constraint("Tangent", 6, 2, 7, 1))
sketch4.addConstraint(Sketcher.Constraint("Tangent", 7, 2, 0, 1))
sketch4.addConstraint(Sketcher.Constraint("Vertical", 1))
sketch4.addConstraint(Sketcher.Constraint("Horizontal", 3))
sketch4.addConstraint(Sketcher.Constraint("Vertical", 5))
sketch4.addConstraint(Sketcher.Constraint("Horizontal", 7))
sketch4.addConstraint(Sketcher.Constraint("Equal", 0, 2))
sketch4.addConstraint(Sketcher.Constraint("Equal", 2, 4))
sketch4.addConstraint(Sketcher.Constraint("Equal", 4, 6))
sketch4.addConstraint(Sketcher.Constraint("Radius", 0, Q("2 in")))
sketch4.addConstraint(Sketcher.Constraint("DistanceY", 1, 2, 1, 1, Q("5 in")))
sketch4.addConstraint(Sketcher.Constraint("DistanceX", 3, 1, 3, 2, Q("3.5625 in")))
sketch4.addConstraint(Sketcher.Constraint("DistanceX", -1, 1, 0, 3, Q("0.218752 in")))
sketch4.addConstraint(Sketcher.Constraint("DistanceY", -1, 1, 0, 3, 112.538))
pad3 = body.newObject("PartDesign::Pad", "Pad002")
pad3.Profile = sketch4
pad3.Length = Q("0.1 in")
doc.recompute()

thickness = body.newObject("PartDesign::Thickness", "Thickness")
thickness.Base = (pad3, faces_at(pad3, [(18.785, -2.54, 27.871)]))
thickness.Value = Q("0.1 in")
thickness.Reversed = True
thickness.Join = "Intersection"

doc.recompute()
